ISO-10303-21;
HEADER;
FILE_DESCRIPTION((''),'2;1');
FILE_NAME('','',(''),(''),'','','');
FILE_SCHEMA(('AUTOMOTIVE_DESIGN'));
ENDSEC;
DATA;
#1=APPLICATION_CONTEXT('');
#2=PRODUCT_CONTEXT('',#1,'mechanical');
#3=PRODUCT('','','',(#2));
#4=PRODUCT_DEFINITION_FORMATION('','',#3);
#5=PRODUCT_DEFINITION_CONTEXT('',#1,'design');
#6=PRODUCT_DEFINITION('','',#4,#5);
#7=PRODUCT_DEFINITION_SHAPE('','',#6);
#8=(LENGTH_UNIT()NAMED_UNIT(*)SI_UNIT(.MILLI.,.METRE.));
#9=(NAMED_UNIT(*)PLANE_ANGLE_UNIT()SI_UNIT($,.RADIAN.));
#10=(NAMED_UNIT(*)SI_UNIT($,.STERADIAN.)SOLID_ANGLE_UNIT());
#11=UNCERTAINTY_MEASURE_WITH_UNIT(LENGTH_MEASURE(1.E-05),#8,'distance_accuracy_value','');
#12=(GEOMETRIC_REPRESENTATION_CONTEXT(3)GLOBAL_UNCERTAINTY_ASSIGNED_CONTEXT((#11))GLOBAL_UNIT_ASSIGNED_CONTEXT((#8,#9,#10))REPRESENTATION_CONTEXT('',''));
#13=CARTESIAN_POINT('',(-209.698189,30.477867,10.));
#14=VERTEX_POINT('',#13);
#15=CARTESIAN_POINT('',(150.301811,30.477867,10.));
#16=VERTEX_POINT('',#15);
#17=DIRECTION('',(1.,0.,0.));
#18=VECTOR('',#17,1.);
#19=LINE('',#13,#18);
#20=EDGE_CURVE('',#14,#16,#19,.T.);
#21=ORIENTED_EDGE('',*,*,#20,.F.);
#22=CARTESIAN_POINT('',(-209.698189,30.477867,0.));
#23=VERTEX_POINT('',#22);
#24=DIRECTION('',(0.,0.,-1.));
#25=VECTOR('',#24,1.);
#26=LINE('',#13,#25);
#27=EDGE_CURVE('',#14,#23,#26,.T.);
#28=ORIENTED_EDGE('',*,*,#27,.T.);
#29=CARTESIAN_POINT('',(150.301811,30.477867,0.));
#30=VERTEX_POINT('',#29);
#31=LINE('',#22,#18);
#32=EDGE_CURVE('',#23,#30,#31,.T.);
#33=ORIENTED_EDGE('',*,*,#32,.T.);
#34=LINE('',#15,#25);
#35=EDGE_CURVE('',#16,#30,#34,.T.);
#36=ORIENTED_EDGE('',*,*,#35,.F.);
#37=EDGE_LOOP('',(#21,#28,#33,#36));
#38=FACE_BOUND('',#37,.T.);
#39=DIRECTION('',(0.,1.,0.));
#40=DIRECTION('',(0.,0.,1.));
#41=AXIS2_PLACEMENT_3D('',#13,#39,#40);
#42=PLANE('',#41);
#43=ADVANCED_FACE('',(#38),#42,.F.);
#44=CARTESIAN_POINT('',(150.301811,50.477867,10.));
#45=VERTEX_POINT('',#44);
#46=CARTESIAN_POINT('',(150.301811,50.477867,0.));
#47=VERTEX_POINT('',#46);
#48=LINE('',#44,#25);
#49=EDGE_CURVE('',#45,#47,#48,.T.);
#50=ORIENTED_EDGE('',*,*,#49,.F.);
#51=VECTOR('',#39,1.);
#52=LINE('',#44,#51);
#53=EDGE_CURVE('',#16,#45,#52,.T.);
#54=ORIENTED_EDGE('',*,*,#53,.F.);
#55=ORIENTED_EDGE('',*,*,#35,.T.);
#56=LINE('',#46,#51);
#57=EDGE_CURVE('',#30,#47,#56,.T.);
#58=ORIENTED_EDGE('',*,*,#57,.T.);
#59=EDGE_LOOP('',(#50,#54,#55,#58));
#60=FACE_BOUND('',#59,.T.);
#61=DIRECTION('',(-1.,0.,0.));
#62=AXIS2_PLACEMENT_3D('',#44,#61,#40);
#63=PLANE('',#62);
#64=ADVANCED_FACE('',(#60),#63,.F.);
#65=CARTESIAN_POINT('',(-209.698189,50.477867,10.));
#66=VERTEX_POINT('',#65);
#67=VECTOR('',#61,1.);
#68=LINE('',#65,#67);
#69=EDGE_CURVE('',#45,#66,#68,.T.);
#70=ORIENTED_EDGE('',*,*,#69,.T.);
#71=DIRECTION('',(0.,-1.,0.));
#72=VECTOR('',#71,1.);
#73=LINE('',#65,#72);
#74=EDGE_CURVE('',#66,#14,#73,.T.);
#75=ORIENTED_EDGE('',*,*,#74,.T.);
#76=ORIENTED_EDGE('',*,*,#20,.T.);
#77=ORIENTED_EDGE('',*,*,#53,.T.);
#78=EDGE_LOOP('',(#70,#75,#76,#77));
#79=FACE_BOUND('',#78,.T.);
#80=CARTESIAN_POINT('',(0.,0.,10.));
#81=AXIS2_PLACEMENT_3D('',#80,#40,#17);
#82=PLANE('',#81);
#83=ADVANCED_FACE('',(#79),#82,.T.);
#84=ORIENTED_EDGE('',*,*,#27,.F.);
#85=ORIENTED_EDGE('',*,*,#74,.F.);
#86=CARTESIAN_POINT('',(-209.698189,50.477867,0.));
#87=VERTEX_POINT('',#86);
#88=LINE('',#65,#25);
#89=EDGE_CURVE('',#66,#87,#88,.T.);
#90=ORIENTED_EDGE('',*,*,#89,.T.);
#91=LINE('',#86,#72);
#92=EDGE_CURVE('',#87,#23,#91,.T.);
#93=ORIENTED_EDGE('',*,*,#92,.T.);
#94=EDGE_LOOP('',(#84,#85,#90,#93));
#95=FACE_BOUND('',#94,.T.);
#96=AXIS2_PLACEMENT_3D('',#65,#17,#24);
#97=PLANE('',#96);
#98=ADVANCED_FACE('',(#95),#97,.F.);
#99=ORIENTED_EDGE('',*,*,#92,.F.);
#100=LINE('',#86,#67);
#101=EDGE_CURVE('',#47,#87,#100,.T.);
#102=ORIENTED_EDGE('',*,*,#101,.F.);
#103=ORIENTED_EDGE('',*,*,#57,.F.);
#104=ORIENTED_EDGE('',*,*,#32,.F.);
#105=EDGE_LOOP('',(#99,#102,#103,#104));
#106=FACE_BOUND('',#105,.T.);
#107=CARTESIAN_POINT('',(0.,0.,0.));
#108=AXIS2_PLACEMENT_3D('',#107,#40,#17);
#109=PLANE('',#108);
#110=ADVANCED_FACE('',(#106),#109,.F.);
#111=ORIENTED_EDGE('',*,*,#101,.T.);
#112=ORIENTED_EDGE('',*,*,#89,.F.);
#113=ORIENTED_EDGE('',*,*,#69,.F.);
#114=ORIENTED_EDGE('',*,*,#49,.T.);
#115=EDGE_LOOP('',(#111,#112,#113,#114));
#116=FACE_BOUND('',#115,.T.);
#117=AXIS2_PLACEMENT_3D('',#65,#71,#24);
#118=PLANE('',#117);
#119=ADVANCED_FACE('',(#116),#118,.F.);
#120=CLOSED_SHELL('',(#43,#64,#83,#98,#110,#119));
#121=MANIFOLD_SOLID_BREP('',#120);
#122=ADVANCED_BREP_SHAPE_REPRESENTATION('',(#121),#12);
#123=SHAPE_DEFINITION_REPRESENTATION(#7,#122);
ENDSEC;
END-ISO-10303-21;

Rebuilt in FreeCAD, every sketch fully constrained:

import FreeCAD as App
import Part
import Sketcher
from FreeCAD import Vector

doc = App.newDocument("Part")
params = doc.addObject("Spreadsheet::Sheet", "Params")
for row, (alias, value) in enumerate([
    ("sketch1_width", "360 mm"),
    ("sketch1_height", "20 mm"),
    ("pad1_length", "10 mm"),
], start=1):
    params.set(f"A{row}", alias)
    params.set(f"B{row}", "=" + value)
    params.setAlias(f"B{row}", alias)

body = doc.addObject("PartDesign::Body", "Body")

# Sketch on XY plane
sketch1 = body.newObject("Sketcher::SketchObject", "Sketch")
sketch1.AttachmentSupport = (doc.getObject("XY_Plane"), [""])
sketch1.MapMode = "FlatFace"
sketch1.addGeometry([
    Part.LineSegment(Vector(-210, 50, 0), Vector(-210, 30, 0)),
    Part.LineSegment(Vector(-210, 30, 0), Vector(150, 30, 0)),
    Part.LineSegment(Vector(150, 30, 0), Vector(150, 50, 0)),
    Part.LineSegment(Vector(150, 50, 0), Vector(-210, 50, 0)),
], False)
sketch1.addConstraint([
    Sketcher.Constraint("Coincident", 0, 2, 1, 1),
    Sketcher.Constraint("Coincident", 1, 2, 2, 1),
    Sketcher.Constraint("Coincident", 2, 2, 3, 1),
    Sketcher.Constraint("Coincident", 3, 2, 0, 1),
    Sketcher.Constraint("Vertical", 0),
    Sketcher.Constraint("Horizontal", 1),
    Sketcher.Constraint("Vertical", 2),
    Sketcher.Constraint("Horizontal", 3),
    Sketcher.Constraint("DistanceX", 1, 1, 1, 2, 360.0),
    Sketcher.Constraint("DistanceY", 0, 2, 0, 1, 20.0),
    Sketcher.Constraint("DistanceX", 0, 2, -1, 1, 209.698189),
    Sketcher.Constraint("DistanceY", -1, 1, 0, 2, 30.477867),
])
sketch1.setExpression("Constraints[8]", "Params.sketch1_width")
sketch1.setExpression("Constraints[9]", "Params.sketch1_height")
pad1 = body.newObject("PartDesign::Pad", "Pad")
pad1.Profile = sketch1
pad1.setExpression("Length", "Params.pad1_length")

doc.recompute()
